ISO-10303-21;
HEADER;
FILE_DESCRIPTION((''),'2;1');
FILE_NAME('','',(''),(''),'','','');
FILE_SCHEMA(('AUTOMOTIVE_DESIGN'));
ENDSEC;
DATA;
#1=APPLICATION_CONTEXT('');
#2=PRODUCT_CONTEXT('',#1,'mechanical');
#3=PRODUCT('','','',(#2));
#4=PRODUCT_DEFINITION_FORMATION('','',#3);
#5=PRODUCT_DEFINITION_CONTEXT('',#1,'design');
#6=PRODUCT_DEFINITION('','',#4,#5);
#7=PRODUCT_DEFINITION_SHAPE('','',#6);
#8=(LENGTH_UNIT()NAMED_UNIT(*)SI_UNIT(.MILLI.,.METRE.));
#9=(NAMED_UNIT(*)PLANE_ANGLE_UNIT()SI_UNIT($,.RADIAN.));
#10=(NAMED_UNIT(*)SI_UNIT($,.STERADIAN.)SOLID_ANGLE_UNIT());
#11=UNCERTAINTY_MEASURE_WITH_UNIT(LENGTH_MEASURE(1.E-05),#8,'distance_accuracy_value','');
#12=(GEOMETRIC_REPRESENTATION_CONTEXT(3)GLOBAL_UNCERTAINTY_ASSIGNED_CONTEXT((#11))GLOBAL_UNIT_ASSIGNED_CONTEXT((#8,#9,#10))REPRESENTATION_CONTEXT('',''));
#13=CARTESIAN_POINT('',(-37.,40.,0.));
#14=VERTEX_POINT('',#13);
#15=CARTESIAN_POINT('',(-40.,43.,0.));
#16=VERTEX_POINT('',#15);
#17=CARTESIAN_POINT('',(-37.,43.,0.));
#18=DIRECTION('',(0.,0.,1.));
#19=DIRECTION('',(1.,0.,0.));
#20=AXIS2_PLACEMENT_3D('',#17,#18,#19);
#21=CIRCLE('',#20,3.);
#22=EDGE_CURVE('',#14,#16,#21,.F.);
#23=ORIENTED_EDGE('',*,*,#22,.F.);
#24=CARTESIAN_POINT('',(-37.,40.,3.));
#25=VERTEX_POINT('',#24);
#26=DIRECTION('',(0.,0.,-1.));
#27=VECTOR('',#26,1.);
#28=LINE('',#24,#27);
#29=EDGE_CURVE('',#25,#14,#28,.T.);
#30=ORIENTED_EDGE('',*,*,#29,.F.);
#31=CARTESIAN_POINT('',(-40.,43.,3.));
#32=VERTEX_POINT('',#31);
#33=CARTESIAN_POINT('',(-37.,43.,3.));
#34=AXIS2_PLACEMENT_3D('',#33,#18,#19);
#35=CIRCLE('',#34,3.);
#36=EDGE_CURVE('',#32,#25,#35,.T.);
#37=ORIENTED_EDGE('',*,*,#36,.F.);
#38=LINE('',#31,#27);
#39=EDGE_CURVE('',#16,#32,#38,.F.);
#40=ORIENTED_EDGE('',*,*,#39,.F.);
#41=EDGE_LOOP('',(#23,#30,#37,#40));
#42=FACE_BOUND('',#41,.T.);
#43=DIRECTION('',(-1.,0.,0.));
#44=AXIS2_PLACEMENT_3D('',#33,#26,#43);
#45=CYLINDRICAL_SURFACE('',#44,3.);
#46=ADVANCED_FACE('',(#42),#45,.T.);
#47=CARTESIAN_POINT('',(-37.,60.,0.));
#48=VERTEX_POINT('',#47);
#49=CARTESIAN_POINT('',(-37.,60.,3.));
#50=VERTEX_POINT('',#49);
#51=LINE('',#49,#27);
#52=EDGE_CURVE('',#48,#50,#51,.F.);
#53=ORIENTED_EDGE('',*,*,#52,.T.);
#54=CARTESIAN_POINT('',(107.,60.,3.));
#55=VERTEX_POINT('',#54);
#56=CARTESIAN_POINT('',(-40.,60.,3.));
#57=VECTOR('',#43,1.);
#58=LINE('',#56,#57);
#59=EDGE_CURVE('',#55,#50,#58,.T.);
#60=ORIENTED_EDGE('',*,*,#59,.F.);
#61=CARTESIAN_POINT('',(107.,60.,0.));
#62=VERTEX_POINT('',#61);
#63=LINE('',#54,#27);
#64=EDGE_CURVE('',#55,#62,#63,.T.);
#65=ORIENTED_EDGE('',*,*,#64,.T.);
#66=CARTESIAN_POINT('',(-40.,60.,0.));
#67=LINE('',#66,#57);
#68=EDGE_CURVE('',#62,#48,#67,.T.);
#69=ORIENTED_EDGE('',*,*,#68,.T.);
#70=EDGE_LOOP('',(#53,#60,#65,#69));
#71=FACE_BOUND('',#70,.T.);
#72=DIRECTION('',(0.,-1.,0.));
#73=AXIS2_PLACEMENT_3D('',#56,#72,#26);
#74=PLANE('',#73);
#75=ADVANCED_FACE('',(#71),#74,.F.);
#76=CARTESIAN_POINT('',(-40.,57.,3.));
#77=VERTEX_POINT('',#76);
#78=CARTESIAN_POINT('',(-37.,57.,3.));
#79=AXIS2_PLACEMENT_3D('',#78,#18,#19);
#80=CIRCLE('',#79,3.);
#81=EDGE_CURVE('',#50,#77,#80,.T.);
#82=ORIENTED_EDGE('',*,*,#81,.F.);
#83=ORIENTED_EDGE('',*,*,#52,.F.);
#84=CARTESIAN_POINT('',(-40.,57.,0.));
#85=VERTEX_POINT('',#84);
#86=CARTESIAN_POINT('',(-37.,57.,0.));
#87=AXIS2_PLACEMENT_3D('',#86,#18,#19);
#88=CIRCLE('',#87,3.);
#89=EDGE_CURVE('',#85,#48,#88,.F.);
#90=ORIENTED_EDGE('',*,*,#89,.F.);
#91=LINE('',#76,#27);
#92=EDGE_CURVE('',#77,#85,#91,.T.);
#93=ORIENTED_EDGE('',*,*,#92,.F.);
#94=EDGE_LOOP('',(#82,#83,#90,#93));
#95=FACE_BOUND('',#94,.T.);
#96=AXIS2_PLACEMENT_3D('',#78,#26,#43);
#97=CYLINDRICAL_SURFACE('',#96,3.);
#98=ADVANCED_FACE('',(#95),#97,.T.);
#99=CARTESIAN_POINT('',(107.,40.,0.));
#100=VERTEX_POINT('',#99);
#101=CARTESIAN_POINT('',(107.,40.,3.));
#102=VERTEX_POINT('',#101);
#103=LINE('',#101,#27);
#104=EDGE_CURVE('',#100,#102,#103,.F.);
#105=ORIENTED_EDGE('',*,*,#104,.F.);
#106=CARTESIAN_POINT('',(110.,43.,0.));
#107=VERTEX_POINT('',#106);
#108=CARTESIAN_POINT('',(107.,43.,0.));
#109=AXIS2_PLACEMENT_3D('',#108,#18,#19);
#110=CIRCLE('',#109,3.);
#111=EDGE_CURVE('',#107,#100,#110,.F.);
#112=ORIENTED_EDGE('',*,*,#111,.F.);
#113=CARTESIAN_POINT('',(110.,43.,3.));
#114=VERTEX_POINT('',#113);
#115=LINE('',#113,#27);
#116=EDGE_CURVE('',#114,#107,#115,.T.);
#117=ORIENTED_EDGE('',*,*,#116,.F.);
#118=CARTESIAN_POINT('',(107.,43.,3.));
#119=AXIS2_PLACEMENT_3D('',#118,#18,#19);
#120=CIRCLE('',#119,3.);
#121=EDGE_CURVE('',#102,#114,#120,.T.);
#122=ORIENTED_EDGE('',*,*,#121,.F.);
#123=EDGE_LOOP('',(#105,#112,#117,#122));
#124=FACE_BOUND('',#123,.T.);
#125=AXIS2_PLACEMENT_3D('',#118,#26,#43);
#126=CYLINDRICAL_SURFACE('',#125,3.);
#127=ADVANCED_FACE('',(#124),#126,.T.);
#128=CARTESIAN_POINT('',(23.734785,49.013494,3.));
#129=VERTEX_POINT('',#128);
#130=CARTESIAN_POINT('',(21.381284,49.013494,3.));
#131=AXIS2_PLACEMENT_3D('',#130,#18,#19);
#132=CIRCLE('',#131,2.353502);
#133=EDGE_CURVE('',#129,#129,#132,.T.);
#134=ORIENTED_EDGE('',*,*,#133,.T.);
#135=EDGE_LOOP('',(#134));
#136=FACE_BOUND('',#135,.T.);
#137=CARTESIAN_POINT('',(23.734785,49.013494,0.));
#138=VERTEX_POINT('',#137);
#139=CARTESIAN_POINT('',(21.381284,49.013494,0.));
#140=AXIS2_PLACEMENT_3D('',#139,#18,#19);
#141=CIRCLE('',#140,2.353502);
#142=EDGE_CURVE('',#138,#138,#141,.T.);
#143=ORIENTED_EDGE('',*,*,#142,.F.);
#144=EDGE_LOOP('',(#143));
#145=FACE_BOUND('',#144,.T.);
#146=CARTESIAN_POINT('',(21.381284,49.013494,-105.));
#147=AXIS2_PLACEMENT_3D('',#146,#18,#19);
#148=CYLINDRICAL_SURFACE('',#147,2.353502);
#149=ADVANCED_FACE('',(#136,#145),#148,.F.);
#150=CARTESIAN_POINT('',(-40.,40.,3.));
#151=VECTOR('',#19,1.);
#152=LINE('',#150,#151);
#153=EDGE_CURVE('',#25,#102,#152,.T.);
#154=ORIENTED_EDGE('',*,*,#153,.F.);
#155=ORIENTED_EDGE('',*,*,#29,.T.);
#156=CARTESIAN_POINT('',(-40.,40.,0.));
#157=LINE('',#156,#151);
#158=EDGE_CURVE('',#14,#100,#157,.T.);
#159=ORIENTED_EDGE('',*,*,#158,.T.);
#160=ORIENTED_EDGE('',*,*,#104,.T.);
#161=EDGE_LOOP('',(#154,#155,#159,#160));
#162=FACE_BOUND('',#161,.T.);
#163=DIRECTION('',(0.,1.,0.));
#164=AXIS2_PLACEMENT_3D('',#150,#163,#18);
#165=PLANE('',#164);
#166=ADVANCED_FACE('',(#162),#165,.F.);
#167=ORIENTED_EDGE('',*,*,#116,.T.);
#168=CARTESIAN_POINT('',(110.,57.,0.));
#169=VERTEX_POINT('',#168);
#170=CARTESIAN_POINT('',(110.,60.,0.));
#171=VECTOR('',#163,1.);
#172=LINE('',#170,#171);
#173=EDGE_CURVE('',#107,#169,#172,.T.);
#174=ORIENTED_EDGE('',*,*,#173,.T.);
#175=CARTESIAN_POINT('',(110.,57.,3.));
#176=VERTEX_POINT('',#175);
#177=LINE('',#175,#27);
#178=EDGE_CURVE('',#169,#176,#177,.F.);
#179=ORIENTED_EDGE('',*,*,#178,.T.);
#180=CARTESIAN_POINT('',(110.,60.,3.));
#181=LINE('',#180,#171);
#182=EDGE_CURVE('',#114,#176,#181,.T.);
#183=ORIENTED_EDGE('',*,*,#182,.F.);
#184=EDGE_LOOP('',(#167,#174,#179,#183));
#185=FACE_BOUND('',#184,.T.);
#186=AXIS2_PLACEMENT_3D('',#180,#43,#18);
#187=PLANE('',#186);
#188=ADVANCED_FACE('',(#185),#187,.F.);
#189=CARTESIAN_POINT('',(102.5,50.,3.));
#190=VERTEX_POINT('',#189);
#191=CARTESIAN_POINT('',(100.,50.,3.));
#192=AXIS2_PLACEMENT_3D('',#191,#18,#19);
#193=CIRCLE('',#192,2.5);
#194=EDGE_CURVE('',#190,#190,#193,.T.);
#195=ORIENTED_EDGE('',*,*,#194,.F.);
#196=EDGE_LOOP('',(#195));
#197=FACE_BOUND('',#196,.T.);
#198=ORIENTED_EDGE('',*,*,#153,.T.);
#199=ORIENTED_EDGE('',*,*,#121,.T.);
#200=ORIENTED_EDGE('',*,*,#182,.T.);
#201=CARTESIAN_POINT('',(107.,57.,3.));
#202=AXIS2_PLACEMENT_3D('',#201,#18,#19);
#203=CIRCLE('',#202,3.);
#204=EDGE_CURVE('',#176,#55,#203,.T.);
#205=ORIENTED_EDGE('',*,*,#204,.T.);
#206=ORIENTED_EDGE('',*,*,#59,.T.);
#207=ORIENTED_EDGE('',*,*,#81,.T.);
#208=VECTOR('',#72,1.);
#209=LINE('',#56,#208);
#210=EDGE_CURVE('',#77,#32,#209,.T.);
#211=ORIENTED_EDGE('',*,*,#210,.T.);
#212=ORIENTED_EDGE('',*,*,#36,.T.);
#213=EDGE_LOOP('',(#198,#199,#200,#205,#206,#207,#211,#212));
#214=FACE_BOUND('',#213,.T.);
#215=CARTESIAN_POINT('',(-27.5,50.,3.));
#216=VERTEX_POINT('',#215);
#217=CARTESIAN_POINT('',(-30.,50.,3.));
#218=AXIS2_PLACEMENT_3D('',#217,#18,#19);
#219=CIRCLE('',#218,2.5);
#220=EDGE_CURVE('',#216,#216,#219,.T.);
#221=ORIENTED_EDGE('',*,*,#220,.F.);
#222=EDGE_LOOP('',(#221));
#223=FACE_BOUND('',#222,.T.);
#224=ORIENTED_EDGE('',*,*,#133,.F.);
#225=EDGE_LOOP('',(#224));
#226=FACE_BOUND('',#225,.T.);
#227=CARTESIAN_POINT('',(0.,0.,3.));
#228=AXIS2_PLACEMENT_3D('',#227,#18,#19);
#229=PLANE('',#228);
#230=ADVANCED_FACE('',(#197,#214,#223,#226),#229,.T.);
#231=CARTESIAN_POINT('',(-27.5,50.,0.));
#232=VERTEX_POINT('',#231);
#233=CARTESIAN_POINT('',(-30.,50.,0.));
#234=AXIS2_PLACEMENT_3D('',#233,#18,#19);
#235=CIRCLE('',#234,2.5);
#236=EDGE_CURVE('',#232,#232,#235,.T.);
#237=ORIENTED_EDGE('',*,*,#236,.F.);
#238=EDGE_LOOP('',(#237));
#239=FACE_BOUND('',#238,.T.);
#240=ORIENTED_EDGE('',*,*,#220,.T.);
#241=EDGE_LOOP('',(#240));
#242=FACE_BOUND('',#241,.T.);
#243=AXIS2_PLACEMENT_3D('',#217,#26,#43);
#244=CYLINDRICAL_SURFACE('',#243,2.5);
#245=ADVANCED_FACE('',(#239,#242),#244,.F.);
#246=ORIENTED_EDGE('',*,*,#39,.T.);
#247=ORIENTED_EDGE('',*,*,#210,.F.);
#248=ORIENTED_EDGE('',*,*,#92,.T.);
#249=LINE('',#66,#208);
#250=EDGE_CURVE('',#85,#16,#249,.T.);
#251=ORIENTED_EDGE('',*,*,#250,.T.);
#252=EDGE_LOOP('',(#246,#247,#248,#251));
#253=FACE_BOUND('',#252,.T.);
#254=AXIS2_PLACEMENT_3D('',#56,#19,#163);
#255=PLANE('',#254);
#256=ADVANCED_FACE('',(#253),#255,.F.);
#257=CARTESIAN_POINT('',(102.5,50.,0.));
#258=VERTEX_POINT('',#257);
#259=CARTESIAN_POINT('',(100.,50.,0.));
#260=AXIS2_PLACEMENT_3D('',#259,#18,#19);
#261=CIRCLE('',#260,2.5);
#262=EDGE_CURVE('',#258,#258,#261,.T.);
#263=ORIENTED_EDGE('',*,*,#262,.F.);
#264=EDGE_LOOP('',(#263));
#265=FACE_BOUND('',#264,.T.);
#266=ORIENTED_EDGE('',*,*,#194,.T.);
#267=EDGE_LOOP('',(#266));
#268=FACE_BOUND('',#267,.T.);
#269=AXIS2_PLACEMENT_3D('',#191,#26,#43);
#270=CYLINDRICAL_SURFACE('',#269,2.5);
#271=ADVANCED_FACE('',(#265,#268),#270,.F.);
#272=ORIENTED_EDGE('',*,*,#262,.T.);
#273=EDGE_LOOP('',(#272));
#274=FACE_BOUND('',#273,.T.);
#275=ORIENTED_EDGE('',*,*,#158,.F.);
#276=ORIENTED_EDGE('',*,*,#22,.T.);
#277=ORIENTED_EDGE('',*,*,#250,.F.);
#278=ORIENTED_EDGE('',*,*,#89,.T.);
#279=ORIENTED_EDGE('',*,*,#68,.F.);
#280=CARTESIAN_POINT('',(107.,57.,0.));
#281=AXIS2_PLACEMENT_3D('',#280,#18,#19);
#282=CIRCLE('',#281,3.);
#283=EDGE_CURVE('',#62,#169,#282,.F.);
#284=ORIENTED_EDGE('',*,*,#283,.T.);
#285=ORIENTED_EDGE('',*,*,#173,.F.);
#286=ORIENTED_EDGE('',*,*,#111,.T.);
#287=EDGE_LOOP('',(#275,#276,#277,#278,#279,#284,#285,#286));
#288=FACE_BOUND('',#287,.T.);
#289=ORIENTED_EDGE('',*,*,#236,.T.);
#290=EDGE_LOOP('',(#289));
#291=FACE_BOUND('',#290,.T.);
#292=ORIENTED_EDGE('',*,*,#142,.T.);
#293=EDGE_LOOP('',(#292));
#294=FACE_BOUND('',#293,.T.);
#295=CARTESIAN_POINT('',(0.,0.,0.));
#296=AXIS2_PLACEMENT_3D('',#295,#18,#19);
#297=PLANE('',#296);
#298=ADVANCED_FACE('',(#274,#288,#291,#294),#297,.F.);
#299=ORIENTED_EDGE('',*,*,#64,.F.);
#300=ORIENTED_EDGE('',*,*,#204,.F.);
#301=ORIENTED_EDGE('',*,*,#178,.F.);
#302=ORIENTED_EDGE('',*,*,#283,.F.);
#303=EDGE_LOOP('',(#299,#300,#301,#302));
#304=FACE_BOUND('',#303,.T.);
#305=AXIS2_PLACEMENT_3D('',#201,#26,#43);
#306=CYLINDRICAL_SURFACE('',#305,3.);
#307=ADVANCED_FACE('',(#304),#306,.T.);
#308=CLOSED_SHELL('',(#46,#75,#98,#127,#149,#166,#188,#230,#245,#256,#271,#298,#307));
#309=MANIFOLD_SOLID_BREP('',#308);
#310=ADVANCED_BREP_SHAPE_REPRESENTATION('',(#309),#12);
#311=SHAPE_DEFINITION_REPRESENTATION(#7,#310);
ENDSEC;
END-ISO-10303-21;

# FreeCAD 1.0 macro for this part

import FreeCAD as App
import Part
import Sketcher
Q = App.Units.Quantity


def edges_at(feature, points):
    """Names of the edges that pass closest to the given points."""
    edges = feature.Shape.Edges
    near = lambda p: min(range(len(edges)), key=lambda i: edges[i].distToShape(Part.Vertex(*p))[0])
    return sorted({f"Edge{near(p) + 1}" for p in points})


def add_polygon(sketch, points):
    """Adds a closed chain of lines whose ends are joined by coincident constraints."""
    first, n = sketch.GeometryCount, len(points)
    for a, b in zip(points, points[1:] + points[:1]):
        sketch.addGeometry(Part.LineSegment(App.Vector(*a, 0), App.Vector(*b, 0)), False)
    for i in range(n):
        sketch.addConstraint(Sketcher.Constraint("Coincident", first + i, 2, first + (i + 1) % n, 1))

doc = App.newDocument("Part")
body = doc.addObject("PartDesign::Body", "Body")

# Sketch on XY plane
sketch1 = body.newObject("Sketcher::SketchObject", "Sketch")
sketch1.AttachmentSupport = (doc.getObject("XY_Plane"), [""])
sketch1.MapMode = "FlatFace"
add_polygon(sketch1, [(-40, 60), (-40, 40), (110, 40), (110, 60)])  # lines 0-3
sketch1.addGeometry(Part.Circle(App.Vector(-30, 50, 0), App.Vector(0, 0, 1), 2.5), False)  # 4
sketch1.addGeometry(Part.Circle(App.Vector(100, 50, 0), App.Vector(0, 0, 1), 2.5), False)  # 5
sketch1.addConstraint([
    Sketcher.Constraint("Vertical", 0),
    Sketcher.Constraint("Horizontal", 1),
    Sketcher.Constraint("Vertical", 2),
    Sketcher.Constraint("Horizontal", 3),
    Sketcher.Constraint("Equal", 4, 5),
    Sketcher.Constraint("Horizontal", 4, 3, 5, 3),
    Sketcher.Constraint("Diameter", 4, Q("5 mm")),
    Sketcher.Constraint("DistanceX", 1, 1, 1, 2, Q("150 mm")),
    Sketcher.Constraint("DistanceY", 0, 2, 0, 1, Q("20 mm")),
    Sketcher.Constraint("DistanceX", 4, 3, -1, 1, Q("30 mm")),
    Sketcher.Constraint("DistanceY", -1, 1, 4, 3, Q("50 mm")),
    Sketcher.Constraint("DistanceX", -1, 1, 5, 3, Q("100 mm")),
    Sketcher.Constraint("DistanceX", 0, 2, -1, 1, Q("40 mm")),
    Sketcher.Constraint("DistanceY", -1, 1, 0, 2, Q("40 mm")),
])
pad1 = body.newObject("PartDesign::Pad", "Pad")
pad1.Profile = sketch1
pad1.Length = 3
doc.recompute()

fillet = body.newObject("PartDesign::Fillet", "Fillet")
fillet.Base = (pad1, edges_at(pad1, [
    (110, 40, 1.5),
    (-40, 40, 1.5),
    (-40, 60, 1.5),
    (110, 60, 1.5),
]))
fillet.Radius = 3

# Sketch on XY plane
sketch2 = body.newObject("Sketcher::SketchObject", "Sketch001")
sketch2.AttachmentSupport = (doc.getObject("XY_Plane"), [""])
sketch2.MapMode = "FlatFace"
sketch2.AttachmentOffset = App.Placement(App.Vector(0, 0, 3), App.Rotation())
sketch2.addGeometry(Part.Circle(App.Vector(21.4, 49, 0), App.Vector(0, 0, 1), 2.4), False)
sketch2.addConstraint([
    Sketcher.Constraint("Diameter", 0, Q("4.707004 mm")),
    Sketcher.Constraint("DistanceX", -1, 1, 0, 3, Q("21.381284 mm")),
    Sketcher.Constraint("DistanceY", -1, 1, 0, 3, Q("49.013494 mm")),
])
pocket1 = body.newObject("PartDesign::Pocket", "Pocket")
pocket1.Profile = sketch2
pocket1.Length = 108

doc.recompute()
